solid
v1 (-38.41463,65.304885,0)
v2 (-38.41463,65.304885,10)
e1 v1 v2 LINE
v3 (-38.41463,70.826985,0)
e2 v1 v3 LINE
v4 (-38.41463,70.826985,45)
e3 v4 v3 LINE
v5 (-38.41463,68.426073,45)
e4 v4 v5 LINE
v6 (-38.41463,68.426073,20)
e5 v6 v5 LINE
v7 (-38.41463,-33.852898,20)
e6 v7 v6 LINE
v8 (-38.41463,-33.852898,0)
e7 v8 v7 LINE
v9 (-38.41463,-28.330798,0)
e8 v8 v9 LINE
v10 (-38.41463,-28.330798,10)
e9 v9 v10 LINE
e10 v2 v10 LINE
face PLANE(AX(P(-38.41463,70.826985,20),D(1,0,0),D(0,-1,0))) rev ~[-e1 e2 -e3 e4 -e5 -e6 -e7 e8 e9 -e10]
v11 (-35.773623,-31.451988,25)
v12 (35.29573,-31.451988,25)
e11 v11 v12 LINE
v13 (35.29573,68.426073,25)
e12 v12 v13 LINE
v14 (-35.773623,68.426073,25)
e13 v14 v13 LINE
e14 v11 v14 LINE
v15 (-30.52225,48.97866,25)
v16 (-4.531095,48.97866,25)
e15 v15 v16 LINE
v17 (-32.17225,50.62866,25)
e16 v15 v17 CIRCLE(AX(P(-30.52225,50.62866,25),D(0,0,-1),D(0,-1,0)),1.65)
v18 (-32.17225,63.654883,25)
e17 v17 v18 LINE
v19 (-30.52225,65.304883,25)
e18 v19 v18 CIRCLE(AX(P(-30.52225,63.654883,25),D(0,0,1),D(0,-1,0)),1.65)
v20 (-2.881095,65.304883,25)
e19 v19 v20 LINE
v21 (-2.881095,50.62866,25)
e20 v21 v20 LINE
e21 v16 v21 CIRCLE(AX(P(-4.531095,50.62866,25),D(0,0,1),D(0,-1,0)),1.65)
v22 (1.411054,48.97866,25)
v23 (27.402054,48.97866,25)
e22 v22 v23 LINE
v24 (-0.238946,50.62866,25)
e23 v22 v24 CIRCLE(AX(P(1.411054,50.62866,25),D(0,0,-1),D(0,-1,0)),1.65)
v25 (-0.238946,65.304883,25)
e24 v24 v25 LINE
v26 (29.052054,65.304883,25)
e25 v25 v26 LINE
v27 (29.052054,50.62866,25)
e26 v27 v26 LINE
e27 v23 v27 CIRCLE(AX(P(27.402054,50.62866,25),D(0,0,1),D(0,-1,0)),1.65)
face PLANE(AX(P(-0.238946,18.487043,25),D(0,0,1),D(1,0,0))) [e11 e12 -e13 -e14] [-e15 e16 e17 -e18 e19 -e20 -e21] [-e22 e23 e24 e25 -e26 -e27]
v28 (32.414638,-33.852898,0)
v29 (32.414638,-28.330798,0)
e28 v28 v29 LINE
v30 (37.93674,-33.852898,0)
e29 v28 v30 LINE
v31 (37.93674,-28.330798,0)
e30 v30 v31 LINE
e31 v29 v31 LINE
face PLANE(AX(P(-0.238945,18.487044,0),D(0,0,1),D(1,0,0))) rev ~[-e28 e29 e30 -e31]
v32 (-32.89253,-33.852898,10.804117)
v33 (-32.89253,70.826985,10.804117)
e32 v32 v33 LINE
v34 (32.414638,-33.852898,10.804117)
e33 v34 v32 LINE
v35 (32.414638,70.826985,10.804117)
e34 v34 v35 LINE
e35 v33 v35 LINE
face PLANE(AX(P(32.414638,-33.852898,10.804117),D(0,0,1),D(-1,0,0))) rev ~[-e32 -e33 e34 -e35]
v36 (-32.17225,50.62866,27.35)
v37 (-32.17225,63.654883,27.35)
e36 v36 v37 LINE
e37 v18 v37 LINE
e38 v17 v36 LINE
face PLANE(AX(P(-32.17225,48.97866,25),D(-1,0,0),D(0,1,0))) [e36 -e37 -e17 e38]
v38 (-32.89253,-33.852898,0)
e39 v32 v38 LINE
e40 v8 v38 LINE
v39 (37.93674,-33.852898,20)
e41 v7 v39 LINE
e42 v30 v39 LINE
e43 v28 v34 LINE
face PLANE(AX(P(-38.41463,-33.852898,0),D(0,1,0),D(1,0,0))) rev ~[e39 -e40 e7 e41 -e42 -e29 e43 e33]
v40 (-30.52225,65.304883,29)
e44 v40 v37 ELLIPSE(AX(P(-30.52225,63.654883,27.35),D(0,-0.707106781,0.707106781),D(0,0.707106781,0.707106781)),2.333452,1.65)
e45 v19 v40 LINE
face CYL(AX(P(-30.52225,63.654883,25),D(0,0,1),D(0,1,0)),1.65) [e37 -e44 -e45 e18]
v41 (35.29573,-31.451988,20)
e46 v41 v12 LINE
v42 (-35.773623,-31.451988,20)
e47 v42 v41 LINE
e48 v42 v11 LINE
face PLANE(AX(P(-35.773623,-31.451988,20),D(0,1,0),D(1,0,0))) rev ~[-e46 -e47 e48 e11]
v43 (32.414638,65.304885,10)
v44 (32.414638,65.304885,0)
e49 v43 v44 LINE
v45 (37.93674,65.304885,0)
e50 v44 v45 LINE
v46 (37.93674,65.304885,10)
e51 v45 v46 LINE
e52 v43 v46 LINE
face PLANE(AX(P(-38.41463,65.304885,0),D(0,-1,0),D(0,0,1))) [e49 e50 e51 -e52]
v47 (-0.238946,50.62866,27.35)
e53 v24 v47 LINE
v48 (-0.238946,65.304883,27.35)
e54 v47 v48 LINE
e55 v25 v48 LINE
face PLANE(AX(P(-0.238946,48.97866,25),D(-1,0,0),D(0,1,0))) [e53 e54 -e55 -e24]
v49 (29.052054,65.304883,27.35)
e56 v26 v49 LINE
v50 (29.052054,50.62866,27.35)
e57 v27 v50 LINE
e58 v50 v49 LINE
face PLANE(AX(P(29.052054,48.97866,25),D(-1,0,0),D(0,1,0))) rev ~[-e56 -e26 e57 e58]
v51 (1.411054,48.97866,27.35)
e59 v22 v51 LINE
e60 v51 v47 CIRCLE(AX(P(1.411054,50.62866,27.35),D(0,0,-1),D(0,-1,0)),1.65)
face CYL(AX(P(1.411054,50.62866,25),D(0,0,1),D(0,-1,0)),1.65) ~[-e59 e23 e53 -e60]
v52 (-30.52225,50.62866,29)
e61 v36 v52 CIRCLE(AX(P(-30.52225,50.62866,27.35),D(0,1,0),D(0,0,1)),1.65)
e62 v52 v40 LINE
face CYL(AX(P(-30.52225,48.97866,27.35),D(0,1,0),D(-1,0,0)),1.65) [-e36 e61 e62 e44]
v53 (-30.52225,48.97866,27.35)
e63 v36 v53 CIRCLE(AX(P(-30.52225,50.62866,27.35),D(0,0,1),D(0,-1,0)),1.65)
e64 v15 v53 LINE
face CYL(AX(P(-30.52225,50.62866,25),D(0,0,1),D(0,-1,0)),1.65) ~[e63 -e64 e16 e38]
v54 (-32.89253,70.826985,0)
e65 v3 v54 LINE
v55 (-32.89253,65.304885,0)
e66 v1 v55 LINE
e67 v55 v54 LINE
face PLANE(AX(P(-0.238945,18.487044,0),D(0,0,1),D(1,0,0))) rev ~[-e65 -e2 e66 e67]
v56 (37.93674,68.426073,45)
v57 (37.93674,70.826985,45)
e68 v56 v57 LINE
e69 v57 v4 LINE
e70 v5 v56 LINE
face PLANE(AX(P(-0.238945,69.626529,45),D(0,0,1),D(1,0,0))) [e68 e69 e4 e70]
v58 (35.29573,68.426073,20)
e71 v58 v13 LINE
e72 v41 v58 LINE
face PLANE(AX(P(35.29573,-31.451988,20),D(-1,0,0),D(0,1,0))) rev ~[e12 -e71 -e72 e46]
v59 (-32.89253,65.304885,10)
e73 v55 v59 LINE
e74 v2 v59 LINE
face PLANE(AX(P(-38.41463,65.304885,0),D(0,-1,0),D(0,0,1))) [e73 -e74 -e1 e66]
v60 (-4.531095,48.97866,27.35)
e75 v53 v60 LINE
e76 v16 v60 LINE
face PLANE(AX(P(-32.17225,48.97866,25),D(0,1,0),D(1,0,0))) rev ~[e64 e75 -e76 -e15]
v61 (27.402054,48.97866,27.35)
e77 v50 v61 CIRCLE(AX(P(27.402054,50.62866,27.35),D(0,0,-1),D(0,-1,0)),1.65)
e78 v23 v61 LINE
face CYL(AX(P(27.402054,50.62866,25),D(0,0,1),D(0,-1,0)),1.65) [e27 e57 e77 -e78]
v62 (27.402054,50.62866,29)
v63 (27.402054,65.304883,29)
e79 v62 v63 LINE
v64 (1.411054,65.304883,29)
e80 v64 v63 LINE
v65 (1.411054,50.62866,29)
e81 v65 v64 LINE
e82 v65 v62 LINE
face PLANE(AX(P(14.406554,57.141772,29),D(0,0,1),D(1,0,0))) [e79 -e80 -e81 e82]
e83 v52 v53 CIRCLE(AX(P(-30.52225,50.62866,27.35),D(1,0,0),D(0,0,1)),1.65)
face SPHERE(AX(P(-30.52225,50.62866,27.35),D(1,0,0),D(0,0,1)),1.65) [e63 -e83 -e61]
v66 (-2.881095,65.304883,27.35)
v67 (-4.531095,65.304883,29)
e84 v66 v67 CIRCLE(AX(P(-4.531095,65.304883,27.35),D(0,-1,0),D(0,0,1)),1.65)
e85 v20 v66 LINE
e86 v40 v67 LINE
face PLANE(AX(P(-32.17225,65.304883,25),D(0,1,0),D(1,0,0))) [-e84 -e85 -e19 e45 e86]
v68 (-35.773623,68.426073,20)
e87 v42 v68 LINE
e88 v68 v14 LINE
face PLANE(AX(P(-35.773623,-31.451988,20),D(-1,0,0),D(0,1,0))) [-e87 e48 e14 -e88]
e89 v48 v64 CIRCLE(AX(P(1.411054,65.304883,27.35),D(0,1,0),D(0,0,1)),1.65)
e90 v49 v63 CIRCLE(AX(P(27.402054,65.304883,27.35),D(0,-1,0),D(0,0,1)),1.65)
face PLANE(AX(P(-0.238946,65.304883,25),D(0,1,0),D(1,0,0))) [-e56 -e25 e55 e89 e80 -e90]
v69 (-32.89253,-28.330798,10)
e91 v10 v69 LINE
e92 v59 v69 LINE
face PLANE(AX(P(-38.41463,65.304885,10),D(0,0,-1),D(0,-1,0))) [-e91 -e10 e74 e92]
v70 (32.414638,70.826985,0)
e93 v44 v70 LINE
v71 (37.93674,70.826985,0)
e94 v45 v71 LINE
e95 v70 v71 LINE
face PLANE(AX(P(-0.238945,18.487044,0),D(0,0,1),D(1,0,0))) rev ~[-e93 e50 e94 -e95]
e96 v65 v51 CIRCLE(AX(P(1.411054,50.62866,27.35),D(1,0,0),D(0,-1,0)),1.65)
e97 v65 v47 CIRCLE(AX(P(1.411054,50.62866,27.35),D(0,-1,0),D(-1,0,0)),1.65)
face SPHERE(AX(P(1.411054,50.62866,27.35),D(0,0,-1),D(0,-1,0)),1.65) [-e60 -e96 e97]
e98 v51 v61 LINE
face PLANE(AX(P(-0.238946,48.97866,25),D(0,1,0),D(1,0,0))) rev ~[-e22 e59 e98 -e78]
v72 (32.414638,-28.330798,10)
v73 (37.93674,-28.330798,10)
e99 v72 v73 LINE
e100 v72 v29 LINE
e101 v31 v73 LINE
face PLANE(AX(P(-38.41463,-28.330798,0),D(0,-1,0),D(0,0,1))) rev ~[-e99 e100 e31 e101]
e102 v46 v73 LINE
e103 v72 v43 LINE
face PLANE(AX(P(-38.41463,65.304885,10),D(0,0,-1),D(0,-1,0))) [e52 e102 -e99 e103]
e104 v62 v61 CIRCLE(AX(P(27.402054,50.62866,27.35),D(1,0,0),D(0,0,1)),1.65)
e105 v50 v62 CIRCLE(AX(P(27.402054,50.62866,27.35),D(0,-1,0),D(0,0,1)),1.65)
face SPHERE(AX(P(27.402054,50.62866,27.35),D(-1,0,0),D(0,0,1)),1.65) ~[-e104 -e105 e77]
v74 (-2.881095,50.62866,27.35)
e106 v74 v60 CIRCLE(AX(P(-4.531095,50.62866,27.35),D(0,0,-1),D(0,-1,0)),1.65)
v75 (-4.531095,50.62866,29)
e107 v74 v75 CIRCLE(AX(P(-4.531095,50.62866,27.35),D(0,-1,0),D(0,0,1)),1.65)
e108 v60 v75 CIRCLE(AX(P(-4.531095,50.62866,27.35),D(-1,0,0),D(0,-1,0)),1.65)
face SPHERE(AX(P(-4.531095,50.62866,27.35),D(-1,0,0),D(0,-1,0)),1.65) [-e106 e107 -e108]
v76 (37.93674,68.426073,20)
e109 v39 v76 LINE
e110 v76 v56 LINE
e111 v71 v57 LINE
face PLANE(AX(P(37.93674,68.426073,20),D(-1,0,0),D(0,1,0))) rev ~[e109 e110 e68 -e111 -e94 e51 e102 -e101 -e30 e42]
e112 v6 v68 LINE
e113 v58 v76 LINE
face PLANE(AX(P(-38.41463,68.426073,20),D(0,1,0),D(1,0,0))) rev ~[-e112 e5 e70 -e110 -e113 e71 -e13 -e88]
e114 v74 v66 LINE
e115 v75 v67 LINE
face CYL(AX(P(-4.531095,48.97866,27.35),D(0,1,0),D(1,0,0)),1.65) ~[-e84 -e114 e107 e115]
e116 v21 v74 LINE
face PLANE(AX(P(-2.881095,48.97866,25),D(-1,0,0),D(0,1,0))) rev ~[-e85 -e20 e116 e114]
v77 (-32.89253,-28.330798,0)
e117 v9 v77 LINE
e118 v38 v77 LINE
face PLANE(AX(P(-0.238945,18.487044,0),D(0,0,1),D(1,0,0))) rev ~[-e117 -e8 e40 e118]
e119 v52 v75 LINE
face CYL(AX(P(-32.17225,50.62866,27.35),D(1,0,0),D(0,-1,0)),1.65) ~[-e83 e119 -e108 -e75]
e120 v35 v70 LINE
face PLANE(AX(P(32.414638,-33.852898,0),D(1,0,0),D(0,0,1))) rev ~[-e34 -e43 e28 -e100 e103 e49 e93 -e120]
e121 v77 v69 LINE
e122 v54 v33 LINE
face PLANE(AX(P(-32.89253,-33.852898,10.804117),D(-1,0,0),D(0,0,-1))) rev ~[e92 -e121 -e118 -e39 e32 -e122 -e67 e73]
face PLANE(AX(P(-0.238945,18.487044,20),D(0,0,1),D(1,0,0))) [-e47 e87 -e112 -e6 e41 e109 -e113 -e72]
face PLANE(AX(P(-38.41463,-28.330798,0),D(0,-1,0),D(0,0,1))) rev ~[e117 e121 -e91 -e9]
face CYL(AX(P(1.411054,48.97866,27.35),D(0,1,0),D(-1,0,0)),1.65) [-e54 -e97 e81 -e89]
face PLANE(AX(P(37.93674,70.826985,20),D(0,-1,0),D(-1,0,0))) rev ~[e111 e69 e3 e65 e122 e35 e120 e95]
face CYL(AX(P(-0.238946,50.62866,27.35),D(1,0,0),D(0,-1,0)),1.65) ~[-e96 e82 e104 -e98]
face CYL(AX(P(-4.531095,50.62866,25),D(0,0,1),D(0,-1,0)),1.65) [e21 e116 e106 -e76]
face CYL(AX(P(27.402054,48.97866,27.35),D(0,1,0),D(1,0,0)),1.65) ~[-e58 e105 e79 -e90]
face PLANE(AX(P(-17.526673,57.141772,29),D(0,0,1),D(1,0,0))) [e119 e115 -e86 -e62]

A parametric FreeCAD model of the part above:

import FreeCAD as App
import Part
import Sketcher

V = App.Vector


def edges_at(feature, points):
    """Names of the edges that pass closest to the given points."""
    edges = feature.Shape.Edges
    near = lambda p: min(range(len(edges)), key=lambda i: edges[i].distToShape(Part.Vertex(*p))[0])
    return sorted({f"Edge{near(p) + 1}" for p in points})


def add_polygon(sketch, points):
    """Adds a closed chain of lines whose ends are joined by coincident constraints."""
    first, n = sketch.GeometryCount, len(points)
    for a, b in zip(points, points[1:] + points[:1]):
        sketch.addGeometry(Part.LineSegment(App.Vector(*a, 0), App.Vector(*b, 0)), False)
    for i in range(n):
        sketch.addConstraint(Sketcher.Constraint("Coincident", first + i, 2, first + (i + 1) % n, 1))

doc = App.newDocument("Part")
body = doc.addObject("PartDesign::Body", "Body")

sketch1 = body.newObject("Sketcher::SketchObject", "Sketch")
sketch1.AttachmentSupport = (doc.getObject("XY_Plane"), [""])
sketch1.MapMode = "FlatFace"
add_polygon(sketch1, [(-38, 71), (-38, -34), (38, -34), (38, 71)])
sketch1.addConstraint(Sketcher.Constraint("Vertical", 0))
sketch1.addConstraint(Sketcher.Constraint("Horizontal", 1))
sketch1.addConstraint(Sketcher.Constraint("Vertical", 2))
sketch1.addConstraint(Sketcher.Constraint("Horizontal", 3))
sketch1.addConstraint(Sketcher.Constraint("DistanceX", 1, 1, 1, 2, 76.35137))
sketch1.addConstraint(Sketcher.Constraint("DistanceY", 0, 2, 0, 1, 104.679883))
sketch1.addConstraint(Sketcher.Constraint("DistanceX", 0, 2, -1, 1, 38.41463))
sketch1.addConstraint(Sketcher.Constraint("DistanceY", 0, 2, -1, 1, 33.852898))
pad1 = body.newObject("PartDesign::Pad", "Pad")
pad1.Profile = sketch1
pad1.Length = 20

sketch2 = body.newObject("Sketcher::SketchObject", "Sketch001")
sketch2.AttachmentSupport = (doc.getObject("XZ_Plane"), [""])
sketch2.MapMode = "FlatFace"
sketch2.AttachmentOffset = App.Placement(V(0, 0, 33.852898), App.Rotation())
add_polygon(sketch2, [(32, 11), (-33, 11), (-33, 0), (32, 0)])
sketch2.addConstraint(Sketcher.Constraint("Horizontal", 0))
sketch2.addConstraint(Sketcher.Constraint("Vertical", 1))
sketch2.addConstraint(Sketcher.Constraint("Horizontal", 2))
sketch2.addConstraint(Sketcher.Constraint("Vertical", 3))
sketch2.addConstraint(Sketcher.Constraint("PointOnObject", 1, 2, -1))
sketch2.addConstraint(Sketcher.Constraint("DistanceX", 0, 2, 0, 1, 65.307168))
sketch2.addConstraint(Sketcher.Constraint("DistanceY", 1, 2, 1, 1, 10.804117))
sketch2.addConstraint(Sketcher.Constraint("DistanceX", 0, 2, -1, 1, 32.89253))
pocket1 = body.newObject("PartDesign::Pocket", "Pocket")
pocket1.Profile = sketch2
pocket1.Length = 105

sketch3 = body.newObject("Sketcher::SketchObject", "Sketch002")
sketch3.AttachmentSupport = (doc.getObject("YZ_Plane"), [""])
sketch3.MapMode = "FlatFace"
sketch3.AttachmentOffset = App.Placement(V(0, 0, -38.41463), App.Rotation())
add_polygon(sketch3, [(65, 10), (65, 0), (-28, 0), (-28, 10)])
sketch3.addConstraint(Sketcher.Constraint("Vertical", 0))
sketch3.addConstraint(Sketcher.Constraint("Horizontal", 1))
sketch3.addConstraint(Sketcher.Constraint("Vertical", 2))
sketch3.addConstraint(Sketcher.Constraint("Horizontal", 3))
sketch3.addConstraint(Sketcher.Constraint("PointOnObject", 0, 2, -1))
sketch3.addConstraint(Sketcher.Constraint("DistanceY", 0, 2, 0, 1, 10.0))
sketch3.addConstraint(Sketcher.Constraint("DistanceX", 1, 2, 1, 1, 93.635683))
sketch3.addConstraint(Sketcher.Constraint("DistanceX", -1, 1, 0, 2, 65.304885))
pocket2 = body.newObject("PartDesign::Pocket", "Pocket001")
pocket2.Profile = sketch3
pocket2.Length = 100
pocket2.Reversed = True

sketch4 = body.newObject("Sketcher::SketchObject", "Sketch003")
sketch4.AttachmentSupport = (doc.getObject("XY_Plane"), [""])
sketch4.MapMode = "FlatFace"
sketch4.AttachmentOffset = App.Placement(V(0, 0, 20), App.Rotation())
add_polygon(sketch4, [(-38.4, 68.4), (37.9, 68.4), (37.9, 70.8), (-38.4, 70.8)])
sketch4.addConstraint(Sketcher.Constraint("Horizontal", 0))
sketch4.addConstraint(Sketcher.Constraint("Vertical", 1))
sketch4.addConstraint(Sketcher.Constraint("Horizontal", 2))
sketch4.addConstraint(Sketcher.Constraint("Vertical", 3))
sketch4.addConstraint(Sketcher.Constraint("DistanceX", 0, 1, 0, 2, 76.35137))
sketch4.addConstraint(Sketcher.Constraint("DistanceY", 1, 1, 1, 2, 2.400912))
sketch4.addConstraint(Sketcher.Constraint("DistanceX", -1, 1, 0, 2, 37.93674))
sketch4.addConstraint(Sketcher.Constraint("DistanceY", -1, 1, 0, 2, 68.426073))
pad2 = body.newObject("PartDesign::Pad", "Pad001")
pad2.Profile = sketch4
pad2.Length = 25

sketch5 = body.newObject("Sketcher::SketchObject", "Sketch004")
sketch5.AttachmentSupport = (doc.getObject("XY_Plane"), [""])
sketch5.MapMode = "FlatFace"
sketch5.AttachmentOffset = App.Placement(V(0, 0, 20), App.Rotation())
add_polygon(sketch5, [(-36, 68), (-36, -31), (35, -31), (35, 68)])
sketch5.addConstraint(Sketcher.Constraint("Vertical", 0))
sketch5.addConstraint(Sketcher.Constraint("Horizontal", 1))
sketch5.addConstraint(Sketcher.Constraint("Vertical", 2))
sketch5.addConstraint(Sketcher.Constraint("Horizontal", 3))
sketch5.addConstraint(Sketcher.Constraint("DistanceY", 0, 2, 0, 1, 99.87806))
sketch5.addConstraint(Sketcher.Constraint("DistanceX", 1, 1, 1, 2, 71.069353))
sketch5.addConstraint(Sketcher.Constraint("DistanceX", -1, 1, 1, 2, 35.29573))
sketch5.addConstraint(Sketcher.Constraint("DistanceY", 0, 2, -1, 1, 31.451988))
pad3 = body.newObject("PartDesign::Pad", "Pad002")
pad3.Profile = sketch5
pad3.Length = 5

sketch6 = body.newObject("Sketcher::SketchObject", "Sketch005")
sketch6.AttachmentSupport = (doc.getObject("XY_Plane"), [""])
sketch6.MapMode = "FlatFace"
sketch6.AttachmentOffset = App.Placement(V(0, 0, 25), App.Rotation())
add_polygon(sketch6, [(-32, 65), (-32, 49), (-3, 49), (-3, 65)])
add_polygon(sketch6, [(0, 65), (0, 49), (29, 49), (29, 65)])
sketch6.addConstraint(Sketcher.Constraint("Vertical", 0))
sketch6.addConstraint(Sketcher.Constraint("Horizontal", 1))
sketch6.addConstraint(Sketcher.Constraint("Vertical", 2))
sketch6.addConstraint(Sketcher.Constraint("Horizontal", 3))
sketch6.addConstraint(Sketcher.Constraint("Vertical", 4))
sketch6.addConstraint(Sketcher.Constraint("Horizontal", 5))
sketch6.addConstraint(Sketcher.Constraint("Vertical", 6))
sketch6.addConstraint(Sketcher.Constraint("Horizontal", 7))
sketch6.addConstraint(Sketcher.Constraint("Horizontal", 1, 2, 4, 2))
sketch6.addConstraint(Sketcher.Constraint("Horizontal", 3, 2, 6, 2))
sketch6.addConstraint(Sketcher.Constraint("DistanceX", 5, 1, 5, 2, 29.291))
sketch6.addConstraint(Sketcher.Constraint("DistanceX", 1, 1, 1, 2, 29.291156))
sketch6.addConstraint(Sketcher.Constraint("DistanceY", 0, 2, 0, 1, 16.326223))
sketch6.addConstraint(Sketcher.Constraint("DistanceX", 0, 2, -1, 1, 32.17225))
sketch6.addConstraint(Sketcher.Constraint("DistanceY", -1, 1, 0, 2, 48.97866))
sketch6.addConstraint(Sketcher.Constraint("DistanceX", 1, 2, 4, 2, 2.642148))
pad4 = body.newObject("PartDesign::Pad", "Pad003")
pad4.Profile = sketch6
pad4.Length = 4
doc.recompute()

fillet = body.newObject("PartDesign::Fillet", "Fillet")
fillet.Base = (pad4, edges_at(pad4, [
    (-17.527, 48.979, 29),
    (-32.172, 65.305, 27),
    (-0.239, 48.979, 27),
    (14.407, 48.979, 29),
    (-0.239, 57.142, 29),
    (-32.172, 57.142, 29),
    (-32.172, 48.979, 27),
    (-2.881, 48.979, 27),
    (-2.881, 57.142, 29),
    (29.052, 57.142, 29),
    (29.052, 48.979, 27),
]))
fillet.Radius = 1.65

doc.recompute()
